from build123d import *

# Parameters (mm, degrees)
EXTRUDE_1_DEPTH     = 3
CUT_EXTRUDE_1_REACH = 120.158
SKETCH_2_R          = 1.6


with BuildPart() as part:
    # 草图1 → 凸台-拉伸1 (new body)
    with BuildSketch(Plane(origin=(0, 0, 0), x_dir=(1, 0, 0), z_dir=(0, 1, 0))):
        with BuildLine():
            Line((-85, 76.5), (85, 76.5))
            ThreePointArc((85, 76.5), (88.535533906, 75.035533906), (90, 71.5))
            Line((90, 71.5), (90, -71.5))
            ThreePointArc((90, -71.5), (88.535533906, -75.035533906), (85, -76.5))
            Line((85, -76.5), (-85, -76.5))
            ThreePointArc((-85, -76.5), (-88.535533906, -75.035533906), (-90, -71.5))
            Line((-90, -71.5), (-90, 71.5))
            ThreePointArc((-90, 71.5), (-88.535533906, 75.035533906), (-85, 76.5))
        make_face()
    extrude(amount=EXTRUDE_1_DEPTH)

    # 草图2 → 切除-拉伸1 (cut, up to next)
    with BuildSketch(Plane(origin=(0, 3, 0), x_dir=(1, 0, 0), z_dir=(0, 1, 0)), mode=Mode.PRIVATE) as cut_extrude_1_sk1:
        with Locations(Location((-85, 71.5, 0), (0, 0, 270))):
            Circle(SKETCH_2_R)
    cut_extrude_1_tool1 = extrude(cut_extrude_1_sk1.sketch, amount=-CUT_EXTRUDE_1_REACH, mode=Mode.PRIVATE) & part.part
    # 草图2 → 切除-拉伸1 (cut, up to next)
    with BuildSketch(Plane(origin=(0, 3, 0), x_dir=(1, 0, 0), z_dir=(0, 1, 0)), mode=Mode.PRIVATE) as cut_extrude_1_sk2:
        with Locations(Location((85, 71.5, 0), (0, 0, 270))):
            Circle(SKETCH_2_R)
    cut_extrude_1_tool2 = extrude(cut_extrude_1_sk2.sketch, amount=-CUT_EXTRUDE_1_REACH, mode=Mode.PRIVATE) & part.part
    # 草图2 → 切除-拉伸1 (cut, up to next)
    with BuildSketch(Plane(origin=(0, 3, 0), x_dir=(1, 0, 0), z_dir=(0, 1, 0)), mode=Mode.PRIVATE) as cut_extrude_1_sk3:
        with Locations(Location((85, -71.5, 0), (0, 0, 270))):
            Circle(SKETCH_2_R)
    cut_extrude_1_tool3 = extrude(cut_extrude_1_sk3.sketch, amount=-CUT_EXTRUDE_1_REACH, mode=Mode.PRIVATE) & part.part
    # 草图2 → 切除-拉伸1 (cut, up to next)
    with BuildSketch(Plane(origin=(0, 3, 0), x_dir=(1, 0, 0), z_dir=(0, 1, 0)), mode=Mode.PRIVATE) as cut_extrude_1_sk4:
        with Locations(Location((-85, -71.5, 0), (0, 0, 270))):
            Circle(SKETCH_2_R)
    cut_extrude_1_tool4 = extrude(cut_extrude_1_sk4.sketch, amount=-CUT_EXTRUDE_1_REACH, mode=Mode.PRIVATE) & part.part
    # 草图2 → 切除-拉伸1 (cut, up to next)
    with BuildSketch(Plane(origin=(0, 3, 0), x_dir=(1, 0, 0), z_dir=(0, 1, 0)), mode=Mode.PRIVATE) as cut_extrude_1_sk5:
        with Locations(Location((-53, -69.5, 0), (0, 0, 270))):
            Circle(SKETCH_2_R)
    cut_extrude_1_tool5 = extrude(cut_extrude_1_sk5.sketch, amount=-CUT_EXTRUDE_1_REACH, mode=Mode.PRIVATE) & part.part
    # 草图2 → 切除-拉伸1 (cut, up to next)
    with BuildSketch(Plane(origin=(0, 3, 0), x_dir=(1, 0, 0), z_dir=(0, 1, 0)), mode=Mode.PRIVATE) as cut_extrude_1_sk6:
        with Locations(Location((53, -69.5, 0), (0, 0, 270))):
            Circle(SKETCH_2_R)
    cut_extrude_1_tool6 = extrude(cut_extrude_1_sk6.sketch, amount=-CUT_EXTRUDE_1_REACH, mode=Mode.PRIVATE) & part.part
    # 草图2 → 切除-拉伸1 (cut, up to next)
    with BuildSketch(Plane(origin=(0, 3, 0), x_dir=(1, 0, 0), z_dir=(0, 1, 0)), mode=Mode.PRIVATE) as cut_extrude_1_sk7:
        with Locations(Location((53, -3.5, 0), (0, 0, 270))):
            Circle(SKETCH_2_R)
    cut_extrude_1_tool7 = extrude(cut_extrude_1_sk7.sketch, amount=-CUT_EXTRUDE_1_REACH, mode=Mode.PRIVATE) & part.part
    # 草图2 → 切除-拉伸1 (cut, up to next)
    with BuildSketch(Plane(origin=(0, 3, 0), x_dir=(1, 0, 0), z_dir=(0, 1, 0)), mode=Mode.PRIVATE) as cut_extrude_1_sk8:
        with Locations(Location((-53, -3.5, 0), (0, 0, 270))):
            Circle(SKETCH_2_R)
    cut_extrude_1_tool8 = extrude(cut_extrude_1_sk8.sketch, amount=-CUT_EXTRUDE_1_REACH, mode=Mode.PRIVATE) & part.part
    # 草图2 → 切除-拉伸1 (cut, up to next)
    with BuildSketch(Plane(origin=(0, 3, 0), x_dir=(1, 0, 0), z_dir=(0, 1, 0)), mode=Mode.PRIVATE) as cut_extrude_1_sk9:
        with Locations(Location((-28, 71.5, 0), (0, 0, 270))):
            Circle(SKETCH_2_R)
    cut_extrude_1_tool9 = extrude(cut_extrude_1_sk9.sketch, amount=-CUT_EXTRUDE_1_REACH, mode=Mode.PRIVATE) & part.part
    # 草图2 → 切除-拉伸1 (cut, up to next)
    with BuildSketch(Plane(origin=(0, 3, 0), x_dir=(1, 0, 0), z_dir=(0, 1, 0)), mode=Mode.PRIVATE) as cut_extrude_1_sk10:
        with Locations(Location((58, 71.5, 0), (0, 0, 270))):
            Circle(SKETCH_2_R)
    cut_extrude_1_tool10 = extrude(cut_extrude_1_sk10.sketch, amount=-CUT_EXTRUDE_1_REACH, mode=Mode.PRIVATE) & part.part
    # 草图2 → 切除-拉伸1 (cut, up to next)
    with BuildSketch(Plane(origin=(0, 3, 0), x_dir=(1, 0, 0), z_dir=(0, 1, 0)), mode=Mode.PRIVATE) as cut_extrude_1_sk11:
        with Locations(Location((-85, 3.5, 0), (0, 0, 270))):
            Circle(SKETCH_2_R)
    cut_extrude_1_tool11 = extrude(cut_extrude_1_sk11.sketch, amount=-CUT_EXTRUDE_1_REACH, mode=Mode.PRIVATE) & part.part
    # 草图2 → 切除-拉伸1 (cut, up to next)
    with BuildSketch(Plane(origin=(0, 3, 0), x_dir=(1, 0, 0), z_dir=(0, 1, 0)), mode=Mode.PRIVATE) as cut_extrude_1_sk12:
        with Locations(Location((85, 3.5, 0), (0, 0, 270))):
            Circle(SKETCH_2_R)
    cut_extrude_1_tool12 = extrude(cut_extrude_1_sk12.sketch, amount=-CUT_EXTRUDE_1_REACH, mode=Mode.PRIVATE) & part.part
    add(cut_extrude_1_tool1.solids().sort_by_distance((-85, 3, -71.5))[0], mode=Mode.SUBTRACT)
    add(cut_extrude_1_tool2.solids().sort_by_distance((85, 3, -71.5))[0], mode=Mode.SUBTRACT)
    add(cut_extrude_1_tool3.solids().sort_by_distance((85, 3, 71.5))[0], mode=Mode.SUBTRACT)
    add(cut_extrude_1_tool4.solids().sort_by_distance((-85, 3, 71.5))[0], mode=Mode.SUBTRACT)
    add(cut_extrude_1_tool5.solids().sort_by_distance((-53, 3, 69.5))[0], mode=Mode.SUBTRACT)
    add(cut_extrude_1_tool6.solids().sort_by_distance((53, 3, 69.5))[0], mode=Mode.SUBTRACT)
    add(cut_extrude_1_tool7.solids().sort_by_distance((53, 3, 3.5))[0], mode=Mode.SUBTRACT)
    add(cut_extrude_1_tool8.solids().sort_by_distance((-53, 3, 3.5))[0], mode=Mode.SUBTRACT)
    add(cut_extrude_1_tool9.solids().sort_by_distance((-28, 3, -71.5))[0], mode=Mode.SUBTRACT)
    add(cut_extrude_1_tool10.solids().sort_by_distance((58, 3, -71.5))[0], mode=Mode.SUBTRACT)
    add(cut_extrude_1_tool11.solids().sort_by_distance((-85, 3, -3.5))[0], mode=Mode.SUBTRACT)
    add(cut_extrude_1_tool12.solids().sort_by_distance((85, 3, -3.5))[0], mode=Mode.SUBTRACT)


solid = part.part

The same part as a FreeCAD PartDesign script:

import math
import FreeCAD as App
import Part
import Sketcher
Q = App.Units.Quantity

doc = App.newDocument("Part")
body = doc.addObject("PartDesign::Body", "Body")

sketch1 = body.newObject("Sketcher::SketchObject", "Sketch")
sketch1.AttachmentSupport = (doc.getObject("XZ_Plane"), [""])
sketch1.MapMode = "FlatFace"
sketch1.addGeometry([
    Part.LineSegment(App.Vector(85, -76, 0), App.Vector(-85, -76, 0)),
    Part.ArcOfCircle(Part.Circle(App.Vector(-85, -72, 0), App.Vector(0, 0, 1), 5), math.radians(180), math.radians(270)),
    Part.LineSegment(App.Vector(-90, -72, 0), App.Vector(-90, 72, 0)),
    Part.ArcOfCircle(Part.Circle(App.Vector(-85, 72, 0), App.Vector(0, 0, 1), 5), math.radians(90), math.radians(180)),
    Part.LineSegment(App.Vector(-85, 76, 0), App.Vector(85, 76, 0)),
    Part.ArcOfCircle(Part.Circle(App.Vector(85, 72, 0), App.Vector(0, 0, 1), 5), math.radians(0), math.radians(90)),
    Part.LineSegment(App.Vector(90, 72, 0), App.Vector(90, -72, 0)),
    Part.ArcOfCircle(Part.Circle(App.Vector(85, -72, 0), App.Vector(0, 0, 1), 5), math.radians(-90), math.radians(0)),
], False)
sketch1.addConstraint([
    Sketcher.Constraint("Tangent", 0, 2, 1, 2),
    Sketcher.Constraint("Tangent", 1, 1, 2, 1),
    Sketcher.Constraint("Tangent", 2, 2, 3, 2),
    Sketcher.Constraint("Tangent", 3, 1, 4, 1),
    Sketcher.Constraint("Tangent", 4, 2, 5, 2),
    Sketcher.Constraint("Tangent", 5, 1, 6, 1),
    Sketcher.Constraint("Tangent", 6, 2, 7, 2),
    Sketcher.Constraint("Tangent", 7, 1, 0, 1),
    Sketcher.Constraint("Horizontal", 0),
    Sketcher.Constraint("Vertical", 2),
    Sketcher.Constraint("Horizontal", 4),
    Sketcher.Constraint("Vertical", 6),
    Sketcher.Constraint("Equal", 1, 3),
    Sketcher.Constraint("Equal", 3, 5),
    Sketcher.Constraint("Equal", 5, 7),
    Sketcher.Constraint("Symmetric", 1, 3, 5, 3, -1, 1),
    Sketcher.Constraint("Radius", 1, Q("5 mm")),
    Sketcher.Constraint("DistanceX", 0, 2, 0, 1, Q("170 mm")),
    Sketcher.Constraint("DistanceY", 2, 1, 2, 2, Q("143 mm")),
])
pad1 = body.newObject("PartDesign::Pad", "Pad")
pad1.Profile = sketch1
pad1.Length = 3
pad1.Reversed = True

sketch2 = body.newObject("Sketcher::SketchObject", "Sketch001")
sketch2.AttachmentSupport = (doc.getObject("XZ_Plane"), [""])
sketch2.MapMode = "FlatFace"
sketch2.AttachmentOffset = App.Placement(App.Vector(0, 0, -3), App.Rotation())
sketch2.addGeometry(Part.Circle(App.Vector(-85, -71.5, 0), App.Vector(0, 0, 1), 1.6), False)
sketch2.addConstraint([
    Sketcher.Constraint("Diameter", 0, Q("3.2 mm")),
    Sketcher.Constraint("DistanceX", 0, 3, -1, 1, Q("85 mm")),
    Sketcher.Constraint("DistanceY", 0, 3, -1, 1, Q("71.5 mm")),
])
pocket1 = body.newObject("PartDesign::Pocket", "Pocket")
pocket1.Profile = sketch2
pocket1.Type = "UpToFirst"
pocket1.Reversed = True

sketch3 = body.newObject("Sketcher::SketchObject", "Sketch002")
sketch3.AttachmentSupport = (doc.getObject("XZ_Plane"), [""])
sketch3.MapMode = "FlatFace"
sketch3.AttachmentOffset = App.Placement(App.Vector(0, 0, -3), App.Rotation())
sketch3.addGeometry(Part.Circle(App.Vector(85, -71.5, 0), App.Vector(0, 0, 1), 1.6), False)
sketch3.addConstraint([
    Sketcher.Constraint("Diameter", 0, Q("3.2 mm")),
    Sketcher.Constraint("DistanceX", -1, 1, 0, 3, Q("85 mm")),
    Sketcher.Constraint("DistanceY", 0, 3, -1, 1, Q("71.5 mm")),
])
pocket2 = body.newObject("PartDesign::Pocket", "Pocket001")
pocket2.Profile = sketch3
pocket2.Type = "UpToFirst"
pocket2.Reversed = True

sketch4 = body.newObject("Sketcher::SketchObject", "Sketch003")
sketch4.AttachmentSupport = (doc.getObject("XZ_Plane"), [""])
sketch4.MapMode = "FlatFace"
sketch4.AttachmentOffset = App.Placement(App.Vector(0, 0, -3), App.Rotation())
sketch4.addGeometry(Part.Circle(App.Vector(85, 71.5, 0), App.Vector(0, 0, 1), 1.6), False)
sketch4.addConstraint([
    Sketcher.Constraint("Diameter", 0, Q("3.2 mm")),
    Sketcher.Constraint("DistanceX", -1, 1, 0, 3, Q("85 mm")),
    Sketcher.Constraint("DistanceY", -1, 1, 0, 3, Q("71.5 mm")),
])
pocket3 = body.newObject("PartDesign::Pocket", "Pocket002")
pocket3.Profile = sketch4
pocket3.Type = "UpToFirst"
pocket3.Reversed = True

sketch5 = body.newObject("Sketcher::SketchObject", "Sketch004")
sketch5.AttachmentSupport = (doc.getObject("XZ_Plane"), [""])
sketch5.MapMode = "FlatFace"
sketch5.AttachmentOffset = App.Placement(App.Vector(0, 0, -3), App.Rotation())
sketch5.addGeometry(Part.Circle(App.Vector(-85, 71.5, 0), App.Vector(0, 0, 1), 1.6), False)
sketch5.addConstraint([
    Sketcher.Constraint("Diameter", 0, Q("3.2 mm")),
    Sketcher.Constraint("DistanceX", 0, 3, -1, 1, Q("85 mm")),
    Sketcher.Constraint("DistanceY", -1, 1, 0, 3, Q("71.5 mm")),
])
pocket4 = body.newObject("PartDesign::Pocket", "Pocket003")
pocket4.Profile = sketch5
pocket4.Type = "UpToFirst"
pocket4.Reversed = True

sketch6 = body.newObject("Sketcher::SketchObject", "Sketch005")
sketch6.AttachmentSupport = (doc.getObject("XZ_Plane"), [""])
sketch6.MapMode = "FlatFace"
sketch6.AttachmentOffset = App.Placement(App.Vector(0, 0, -3), App.Rotation())
sketch6.addGeometry(Part.Circle(App.Vector(-53, 69.5, 0), App.Vector(0, 0, 1), 1.6), False)
sketch6.addConstraint([
    Sketcher.Constraint("Diameter", 0, Q("3.2 mm")),
    Sketcher.Constraint("DistanceX", 0, 3, -1, 1, Q("53 mm")),
    Sketcher.Constraint("DistanceY", -1, 1, 0, 3, Q("69.5 mm")),
])
pocket5 = body.newObject("PartDesign::Pocket", "Pocket004")
pocket5.Profile = sketch6
pocket5.Type = "UpToFirst"
pocket5.Reversed = True

sketch7 = body.newObject("Sketcher::SketchObject", "Sketch006")
sketch7.AttachmentSupport = (doc.getObject("XZ_Plane"), [""])
sketch7.MapMode = "FlatFace"
sketch7.AttachmentOffset = App.Placement(App.Vector(0, 0, -3), App.Rotation())
sketch7.addGeometry(Part.Circle(App.Vector(53, 69.5, 0), App.Vector(0, 0, 1), 1.6), False)
sketch7.addConstraint([
    Sketcher.Constraint("Diameter", 0, Q("3.2 mm")),
    Sketcher.Constraint("DistanceX", -1, 1, 0, 3, Q("53 mm")),
    Sketcher.Constraint("DistanceY", -1, 1, 0, 3, Q("69.5 mm")),
])
pocket6 = body.newObject("PartDesign::Pocket", "Pocket005")
pocket6.Profile = sketch7
pocket6.Type = "UpToFirst"
pocket6.Reversed = True

sketch8 = body.newObject("Sketcher::SketchObject", "Sketch007")
sketch8.AttachmentSupport = (doc.getObject("XZ_Plane"), [""])
sketch8.MapMode = "FlatFace"
sketch8.AttachmentOffset = App.Placement(App.Vector(0, 0, -3), App.Rotation())
sketch8.addGeometry(Part.Circle(App.Vector(53, 3.5, 0), App.Vector(0, 0, 1), 1.6), False)
sketch8.addConstraint([
    Sketcher.Constraint("Diameter", 0, Q("3.2 mm")),
    Sketcher.Constraint("DistanceX", -1, 1, 0, 3, Q("53 mm")),
    Sketcher.Constraint("DistanceY", -1, 1, 0, 3, Q("3.5 mm")),
])
pocket7 = body.newObject("PartDesign::Pocket", "Pocket006")
pocket7.Profile = sketch8
pocket7.Type = "UpToFirst"
pocket7.Reversed = True

sketch9 = body.newObject("Sketcher::SketchObject", "Sketch008")
sketch9.AttachmentSupport = (doc.getObject("XZ_Plane"), [""])
sketch9.MapMode = "FlatFace"
sketch9.AttachmentOffset = App.Placement(App.Vector(0, 0, -3), App.Rotation())
sketch9.addGeometry(Part.Circle(App.Vector(-53, 3.5, 0), App.Vector(0, 0, 1), 1.6), False)
sketch9.addConstraint([
    Sketcher.Constraint("Diameter", 0, Q("3.2 mm")),
    Sketcher.Constraint("DistanceX", 0, 3, -1, 1, Q("53 mm")),
    Sketcher.Constraint("DistanceY", -1, 1, 0, 3, Q("3.5 mm")),
])
pocket8 = body.newObject("PartDesign::Pocket", "Pocket007")
pocket8.Profile = sketch9
pocket8.Type = "UpToFirst"
pocket8.Reversed = True

sketch10 = body.newObject("Sketcher::SketchObject", "Sketch009")
sketch10.AttachmentSupport = (doc.getObject("XZ_Plane"), [""])
sketch10.MapMode = "FlatFace"
sketch10.AttachmentOffset = App.Placement(App.Vector(0, 0, -3), App.Rotation())
sketch10.addGeometry(Part.Circle(App.Vector(-28, -71.5, 0), App.Vector(0, 0, 1), 1.6), False)
sketch10.addConstraint([
    Sketcher.Constraint("Diameter", 0, Q("3.2 mm")),
    Sketcher.Constraint("DistanceX", 0, 3, -1, 1, Q("28 mm")),
    Sketcher.Constraint("DistanceY", 0, 3, -1, 1, Q("71.5 mm")),
])
pocket9 = body.newObject("PartDesign::Pocket", "Pocket008")
pocket9.Profile = sketch10
pocket9.Type = "UpToFirst"
pocket9.Reversed = True

sketch11 = body.newObject("Sketcher::SketchObject", "Sketch010")
sketch11.AttachmentSupport = (doc.getObject("XZ_Plane"), [""])
sketch11.MapMode = "FlatFace"
sketch11.AttachmentOffset = App.Placement(App.Vector(0, 0, -3), App.Rotation())
sketch11.addGeometry(Part.Circle(App.Vector(58, -71.5, 0), App.Vector(0, 0, 1), 1.6), False)
sketch11.addConstraint([
    Sketcher.Constraint("Diameter", 0, Q("3.2 mm")),
    Sketcher.Constraint("DistanceX", -1, 1, 0, 3, Q("58 mm")),
    Sketcher.Constraint("DistanceY", 0, 3, -1, 1, Q("71.5 mm")),
])
pocket10 = body.newObject("PartDesign::Pocket", "Pocket009")
pocket10.Profile = sketch11
pocket10.Type = "UpToFirst"
pocket10.Reversed = True

sketch12 = body.newObject("Sketcher::SketchObject", "Sketch011")
sketch12.AttachmentSupport = (doc.getObject("XZ_Plane"), [""])
sketch12.MapMode = "FlatFace"
sketch12.AttachmentOffset = App.Placement(App.Vector(0, 0, -3), App.Rotation())
sketch12.addGeometry(Part.Circle(App.Vector(-85, -3.5, 0), App.Vector(0, 0, 1), 1.6), False)
sketch12.addConstraint([
    Sketcher.Constraint("Diameter", 0, Q("3.2 mm")),
    Sketcher.Constraint("DistanceX", 0, 3, -1, 1, Q("85 mm")),
    Sketcher.Constraint("DistanceY", 0, 3, -1, 1, Q("3.5 mm")),
])
pocket11 = body.newObject("PartDesign::Pocket", "Pocket010")
pocket11.Profile = sketch12
pocket11.Type = "UpToFirst"
pocket11.Reversed = True

sketch13 = body.newObject("Sketcher::SketchObject", "Sketch012")
sketch13.AttachmentSupport = (doc.getObject("XZ_Plane"), [""])
sketch13.MapMode = "FlatFace"
sketch13.AttachmentOffset = App.Placement(App.Vector(0, 0, -3), App.Rotation())
sketch13.addGeometry(Part.Circle(App.Vector(85, -3.5, 0), App.Vector(0, 0, 1), 1.6), False)
sketch13.addConstraint([
    Sketcher.Constraint("Diameter", 0, Q("3.2 mm")),
    Sketcher.Constraint("DistanceX", -1, 1, 0, 3, Q("85 mm")),
    Sketcher.Constraint("DistanceY", 0, 3, -1, 1, Q("3.5 mm")),
])
pocket12 = body.newObject("PartDesign::Pocket", "Pocket011")
pocket12.Profile = sketch13
pocket12.Type = "UpToFirst"
pocket12.Reversed = True

doc.recompute()
